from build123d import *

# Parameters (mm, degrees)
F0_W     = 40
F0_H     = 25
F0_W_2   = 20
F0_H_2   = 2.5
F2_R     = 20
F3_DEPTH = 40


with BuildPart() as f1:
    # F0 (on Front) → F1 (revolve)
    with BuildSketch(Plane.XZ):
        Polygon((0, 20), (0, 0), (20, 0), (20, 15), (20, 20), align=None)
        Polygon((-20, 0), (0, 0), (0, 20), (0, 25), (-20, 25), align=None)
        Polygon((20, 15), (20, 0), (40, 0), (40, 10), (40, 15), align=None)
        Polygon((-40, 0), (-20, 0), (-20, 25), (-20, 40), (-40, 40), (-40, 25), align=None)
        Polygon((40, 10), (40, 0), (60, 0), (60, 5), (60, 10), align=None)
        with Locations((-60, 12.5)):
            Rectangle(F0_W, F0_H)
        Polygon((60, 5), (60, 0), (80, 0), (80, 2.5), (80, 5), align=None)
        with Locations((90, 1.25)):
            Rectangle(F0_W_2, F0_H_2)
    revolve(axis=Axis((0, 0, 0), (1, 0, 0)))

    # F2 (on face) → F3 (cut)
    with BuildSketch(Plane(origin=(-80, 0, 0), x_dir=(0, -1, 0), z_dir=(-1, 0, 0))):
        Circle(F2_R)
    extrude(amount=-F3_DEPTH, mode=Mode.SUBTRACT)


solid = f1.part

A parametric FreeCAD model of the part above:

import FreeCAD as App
import Part
import Sketcher

V = App.Vector

doc = App.newDocument("Part")
params = doc.addObject("Spreadsheet::Sheet", "Params")
for row, (alias, value) in enumerate([
    ("sketch1_width", "20 mm"),
    ("sketch1_width2", "40 mm"),
    ("sketch1_height", "5 mm"),
    ("sketch1_height2", "15 mm"),
    ("sketch1_height3", "25 mm"),
    ("revolution_angle", "360 deg"),
    ("sketch2_diameter", "40 mm"),
    ("pocket1_length", "40 mm"),
], start=1):
    params.set(f"A{row}", alias)
    params.set(f"B{row}", "=" + value)
    params.setAlias(f"B{row}", alias)

body = doc.addObject("PartDesign::Body", "Body")

sketch1 = doc.addObject("Sketcher::SketchObject", "Sketch")
body.addObject(sketch1)
sketch1.AttachmentSupport = (doc.XZ_Plane, [""])
sketch1.MapMode = "FlatFace"
sketch1.addGeometry(Part.LineSegment(V(20, 15, 0), V(20, 20, 0)), False)
sketch1.addGeometry(Part.LineSegment(V(20, 20, 0), V(0, 20, 0)), False)
sketch1.addGeometry(Part.LineSegment(V(0, 20, 0), V(0, 25, 0)), False)
sketch1.addGeometry(Part.LineSegment(V(0, 25, 0), V(-20, 25, 0)), False)
sketch1.addGeometry(Part.LineSegment(V(-20, 25, 0), V(-20, 40, 0)), False)
sketch1.addGeometry(Part.LineSegment(V(-20, 40, 0), V(-40, 40, 0)), False)
sketch1.addGeometry(Part.LineSegment(V(-40, 40, 0), V(-40, 25, 0)), False)
sketch1.addGeometry(Part.LineSegment(V(-40, 25, 0), V(-80, 25, 0)), False)
sketch1.addGeometry(Part.LineSegment(V(-80, 25, 0), V(-80, 0, 0)), False)
sketch1.addGeometry(Part.LineSegment(V(-80, 0, 0), V(100, 0, 0)), False)
sketch1.addGeometry(Part.LineSegment(V(100, 0, 0), V(100, 2.5, 0)), False)
sketch1.addGeometry(Part.LineSegment(V(100, 2.5, 0), V(80, 2.5, 0)), False)
sketch1.addGeometry(Part.LineSegment(V(80, 2.5, 0), V(80, 5, 0)), False)
sketch1.addGeometry(Part.LineSegment(V(80, 5, 0), V(60, 5, 0)), False)
sketch1.addGeometry(Part.LineSegment(V(60, 5, 0), V(60, 10, 0)), False)
sketch1.addGeometry(Part.LineSegment(V(60, 10, 0), V(40, 10, 0)), False)
sketch1.addGeometry(Part.LineSegment(V(40, 10, 0), V(40, 15, 0)), False)
sketch1.addGeometry(Part.LineSegment(V(40, 15, 0), V(20, 15, 0)), False)
sketch1.addConstraint(Sketcher.Constraint("Coincident", 0, 2, 1, 1))
sketch1.addConstraint(Sketcher.Constraint("Coincident", 1, 2, 2, 1))
sketch1.addConstraint(Sketcher.Constraint("Coincident", 2, 2, 3, 1))
sketch1.addConstraint(Sketcher.Constraint("Coincident", 3, 2, 4, 1))
sketch1.addConstraint(Sketcher.Constraint("Coincident", 4, 2, 5, 1))
sketch1.addConstraint(Sketcher.Constraint("Coincident", 5, 2, 6, 1))
sketch1.addConstraint(Sketcher.Constraint("Coincident", 6, 2, 7, 1))
sketch1.addConstraint(Sketcher.Constraint("Coincident", 7, 2, 8, 1))
sketch1.addConstraint(Sketcher.Constraint("Coincident", 8, 2, 9, 1))
sketch1.addConstraint(Sketcher.Constraint("Coincident", 9, 2, 10, 1))
sketch1.addConstraint(Sketcher.Constraint("Coincident", 10, 2, 11, 1))
sketch1.addConstraint(Sketcher.Constraint("Coincident", 11, 2, 12, 1))
sketch1.addConstraint(Sketcher.Constraint("Coincident", 12, 2, 13, 1))
sketch1.addConstraint(Sketcher.Constraint("Coincident", 13, 2, 14, 1))
sketch1.addConstraint(Sketcher.Constraint("Coincident", 14, 2, 15, 1))
sketch1.addConstraint(Sketcher.Constraint("Coincident", 15, 2, 16, 1))
sketch1.addConstraint(Sketcher.Constraint("Coincident", 16, 2, 17, 1))
sketch1.addConstraint(Sketcher.Constraint("Coincident", 17, 2, 0, 1))
sketch1.addConstraint(Sketcher.Constraint("Vertical", 0))
sketch1.addConstraint(Sketcher.Constraint("Horizontal", 1))
sketch1.addConstraint(Sketcher.Constraint("Vertical", 2))
sketch1.addConstraint(Sketcher.Constraint("Horizontal", 3))
sketch1.addConstraint(Sketcher.Constraint("Vertical", 4))
sketch1.addConstraint(Sketcher.Constraint("Horizontal", 5))
sketch1.addConstraint(Sketcher.Constraint("Vertical", 6))
sketch1.addConstraint(Sketcher.Constraint("Horizontal", 7))
sketch1.addConstraint(Sketcher.Constraint("Vertical", 8))
sketch1.addConstraint(Sketcher.Constraint("Horizontal", 9))
sketch1.addConstraint(Sketcher.Constraint("Vertical", 10))
sketch1.addConstraint(Sketcher.Constraint("Horizontal", 11))
sketch1.addConstraint(Sketcher.Constraint("Vertical", 12))
sketch1.addConstraint(Sketcher.Constraint("Horizontal", 13))
sketch1.addConstraint(Sketcher.Constraint("Vertical", 14))
sketch1.addConstraint(Sketcher.Constraint("Horizontal", 15))
sketch1.addConstraint(Sketcher.Constraint("Vertical", 16))
sketch1.addConstraint(Sketcher.Constraint("Horizontal", 17))
sketch1.addConstraint(Sketcher.Constraint("PointOnObject", 1, 2, -2))
sketch1.addConstraint(Sketcher.Constraint("PointOnObject", 8, 2, -1))
sketch1.addConstraint(Sketcher.Constraint("Horizontal", 3, 2, 6, 2))
sketch1.addConstraint(Sketcher.Constraint("Equal", 1, 3))
sketch1.addConstraint(Sketcher.Constraint("Equal", 3, 5))
sketch1.addConstraint(Sketcher.Constraint("Equal", 5, 11))
sketch1.addConstraint(Sketcher.Constraint("Equal", 11, 13))
sketch1.addConstraint(Sketcher.Constraint("Equal", 13, 15))
sketch1.addConstraint(Sketcher.Constraint("Equal", 15, 17))
sketch1.addConstraint(Sketcher.Constraint("Equal", 0, 2))
sketch1.addConstraint(Sketcher.Constraint("Equal", 10, 12))
sketch1.addConstraint(Sketcher.Constraint("Equal", 2, 14))
sketch1.addConstraint(Sketcher.Constraint("Equal", 14, 16))
sketch1.addConstraint(Sketcher.Constraint("DistanceX", 1, 2, 1, 1, 20.0))
sketch1.addConstraint(Sketcher.Constraint("DistanceX", 7, 2, 7, 1, 40.0))
sketch1.addConstraint(Sketcher.Constraint("DistanceY", 0, 1, 0, 2, 5.0))
sketch1.addConstraint(Sketcher.Constraint("DistanceY", 4, 1, 4, 2, 15.0))
sketch1.addConstraint(Sketcher.Constraint("DistanceY", 8, 2, 8, 1, 25.0))
sketch1.setExpression("Constraints[49]", "Params.sketch1_width")
sketch1.setExpression("Constraints[50]", "Params.sketch1_width2")
sketch1.setExpression("Constraints[51]", "Params.sketch1_height")
sketch1.setExpression("Constraints[52]", "Params.sketch1_height2")
sketch1.setExpression("Constraints[53]", "Params.sketch1_height3")
revolution = doc.addObject("PartDesign::Revolution", "Revolution")
body.addObject(revolution)
revolution.Profile = sketch1
revolution.ReferenceAxis = (sketch1, ["H_Axis"])
revolution.setExpression("Angle", "Params.revolution_angle")

sketch2 = doc.addObject("Sketcher::SketchObject", "Sketch001")
body.addObject(sketch2)
sketch2.AttachmentSupport = (doc.YZ_Plane, [""])
sketch2.MapMode = "FlatFace"
sketch2.AttachmentOffset = App.Placement(V(0, 0, -80), App.Rotation())
sketch2.addGeometry(Part.Circle(V(0, 0, 0), V(0, 0, 1), 20), False)
sketch2.addConstraint(Sketcher.Constraint("Coincident", 0, 3, -1, 1))
sketch2.addConstraint(Sketcher.Constraint("Diameter", 0, 40.0))
sketch2.setExpression("Constraints[1]", "Params.sketch2_diameter")
pocket1 = doc.addObject("PartDesign::Pocket", "Pocket")
body.addObject(pocket1)
pocket1.Profile = sketch2
pocket1.setExpression("Length", "Params.pocket1_length")
pocket1.Reversed = True

doc.recompute()
